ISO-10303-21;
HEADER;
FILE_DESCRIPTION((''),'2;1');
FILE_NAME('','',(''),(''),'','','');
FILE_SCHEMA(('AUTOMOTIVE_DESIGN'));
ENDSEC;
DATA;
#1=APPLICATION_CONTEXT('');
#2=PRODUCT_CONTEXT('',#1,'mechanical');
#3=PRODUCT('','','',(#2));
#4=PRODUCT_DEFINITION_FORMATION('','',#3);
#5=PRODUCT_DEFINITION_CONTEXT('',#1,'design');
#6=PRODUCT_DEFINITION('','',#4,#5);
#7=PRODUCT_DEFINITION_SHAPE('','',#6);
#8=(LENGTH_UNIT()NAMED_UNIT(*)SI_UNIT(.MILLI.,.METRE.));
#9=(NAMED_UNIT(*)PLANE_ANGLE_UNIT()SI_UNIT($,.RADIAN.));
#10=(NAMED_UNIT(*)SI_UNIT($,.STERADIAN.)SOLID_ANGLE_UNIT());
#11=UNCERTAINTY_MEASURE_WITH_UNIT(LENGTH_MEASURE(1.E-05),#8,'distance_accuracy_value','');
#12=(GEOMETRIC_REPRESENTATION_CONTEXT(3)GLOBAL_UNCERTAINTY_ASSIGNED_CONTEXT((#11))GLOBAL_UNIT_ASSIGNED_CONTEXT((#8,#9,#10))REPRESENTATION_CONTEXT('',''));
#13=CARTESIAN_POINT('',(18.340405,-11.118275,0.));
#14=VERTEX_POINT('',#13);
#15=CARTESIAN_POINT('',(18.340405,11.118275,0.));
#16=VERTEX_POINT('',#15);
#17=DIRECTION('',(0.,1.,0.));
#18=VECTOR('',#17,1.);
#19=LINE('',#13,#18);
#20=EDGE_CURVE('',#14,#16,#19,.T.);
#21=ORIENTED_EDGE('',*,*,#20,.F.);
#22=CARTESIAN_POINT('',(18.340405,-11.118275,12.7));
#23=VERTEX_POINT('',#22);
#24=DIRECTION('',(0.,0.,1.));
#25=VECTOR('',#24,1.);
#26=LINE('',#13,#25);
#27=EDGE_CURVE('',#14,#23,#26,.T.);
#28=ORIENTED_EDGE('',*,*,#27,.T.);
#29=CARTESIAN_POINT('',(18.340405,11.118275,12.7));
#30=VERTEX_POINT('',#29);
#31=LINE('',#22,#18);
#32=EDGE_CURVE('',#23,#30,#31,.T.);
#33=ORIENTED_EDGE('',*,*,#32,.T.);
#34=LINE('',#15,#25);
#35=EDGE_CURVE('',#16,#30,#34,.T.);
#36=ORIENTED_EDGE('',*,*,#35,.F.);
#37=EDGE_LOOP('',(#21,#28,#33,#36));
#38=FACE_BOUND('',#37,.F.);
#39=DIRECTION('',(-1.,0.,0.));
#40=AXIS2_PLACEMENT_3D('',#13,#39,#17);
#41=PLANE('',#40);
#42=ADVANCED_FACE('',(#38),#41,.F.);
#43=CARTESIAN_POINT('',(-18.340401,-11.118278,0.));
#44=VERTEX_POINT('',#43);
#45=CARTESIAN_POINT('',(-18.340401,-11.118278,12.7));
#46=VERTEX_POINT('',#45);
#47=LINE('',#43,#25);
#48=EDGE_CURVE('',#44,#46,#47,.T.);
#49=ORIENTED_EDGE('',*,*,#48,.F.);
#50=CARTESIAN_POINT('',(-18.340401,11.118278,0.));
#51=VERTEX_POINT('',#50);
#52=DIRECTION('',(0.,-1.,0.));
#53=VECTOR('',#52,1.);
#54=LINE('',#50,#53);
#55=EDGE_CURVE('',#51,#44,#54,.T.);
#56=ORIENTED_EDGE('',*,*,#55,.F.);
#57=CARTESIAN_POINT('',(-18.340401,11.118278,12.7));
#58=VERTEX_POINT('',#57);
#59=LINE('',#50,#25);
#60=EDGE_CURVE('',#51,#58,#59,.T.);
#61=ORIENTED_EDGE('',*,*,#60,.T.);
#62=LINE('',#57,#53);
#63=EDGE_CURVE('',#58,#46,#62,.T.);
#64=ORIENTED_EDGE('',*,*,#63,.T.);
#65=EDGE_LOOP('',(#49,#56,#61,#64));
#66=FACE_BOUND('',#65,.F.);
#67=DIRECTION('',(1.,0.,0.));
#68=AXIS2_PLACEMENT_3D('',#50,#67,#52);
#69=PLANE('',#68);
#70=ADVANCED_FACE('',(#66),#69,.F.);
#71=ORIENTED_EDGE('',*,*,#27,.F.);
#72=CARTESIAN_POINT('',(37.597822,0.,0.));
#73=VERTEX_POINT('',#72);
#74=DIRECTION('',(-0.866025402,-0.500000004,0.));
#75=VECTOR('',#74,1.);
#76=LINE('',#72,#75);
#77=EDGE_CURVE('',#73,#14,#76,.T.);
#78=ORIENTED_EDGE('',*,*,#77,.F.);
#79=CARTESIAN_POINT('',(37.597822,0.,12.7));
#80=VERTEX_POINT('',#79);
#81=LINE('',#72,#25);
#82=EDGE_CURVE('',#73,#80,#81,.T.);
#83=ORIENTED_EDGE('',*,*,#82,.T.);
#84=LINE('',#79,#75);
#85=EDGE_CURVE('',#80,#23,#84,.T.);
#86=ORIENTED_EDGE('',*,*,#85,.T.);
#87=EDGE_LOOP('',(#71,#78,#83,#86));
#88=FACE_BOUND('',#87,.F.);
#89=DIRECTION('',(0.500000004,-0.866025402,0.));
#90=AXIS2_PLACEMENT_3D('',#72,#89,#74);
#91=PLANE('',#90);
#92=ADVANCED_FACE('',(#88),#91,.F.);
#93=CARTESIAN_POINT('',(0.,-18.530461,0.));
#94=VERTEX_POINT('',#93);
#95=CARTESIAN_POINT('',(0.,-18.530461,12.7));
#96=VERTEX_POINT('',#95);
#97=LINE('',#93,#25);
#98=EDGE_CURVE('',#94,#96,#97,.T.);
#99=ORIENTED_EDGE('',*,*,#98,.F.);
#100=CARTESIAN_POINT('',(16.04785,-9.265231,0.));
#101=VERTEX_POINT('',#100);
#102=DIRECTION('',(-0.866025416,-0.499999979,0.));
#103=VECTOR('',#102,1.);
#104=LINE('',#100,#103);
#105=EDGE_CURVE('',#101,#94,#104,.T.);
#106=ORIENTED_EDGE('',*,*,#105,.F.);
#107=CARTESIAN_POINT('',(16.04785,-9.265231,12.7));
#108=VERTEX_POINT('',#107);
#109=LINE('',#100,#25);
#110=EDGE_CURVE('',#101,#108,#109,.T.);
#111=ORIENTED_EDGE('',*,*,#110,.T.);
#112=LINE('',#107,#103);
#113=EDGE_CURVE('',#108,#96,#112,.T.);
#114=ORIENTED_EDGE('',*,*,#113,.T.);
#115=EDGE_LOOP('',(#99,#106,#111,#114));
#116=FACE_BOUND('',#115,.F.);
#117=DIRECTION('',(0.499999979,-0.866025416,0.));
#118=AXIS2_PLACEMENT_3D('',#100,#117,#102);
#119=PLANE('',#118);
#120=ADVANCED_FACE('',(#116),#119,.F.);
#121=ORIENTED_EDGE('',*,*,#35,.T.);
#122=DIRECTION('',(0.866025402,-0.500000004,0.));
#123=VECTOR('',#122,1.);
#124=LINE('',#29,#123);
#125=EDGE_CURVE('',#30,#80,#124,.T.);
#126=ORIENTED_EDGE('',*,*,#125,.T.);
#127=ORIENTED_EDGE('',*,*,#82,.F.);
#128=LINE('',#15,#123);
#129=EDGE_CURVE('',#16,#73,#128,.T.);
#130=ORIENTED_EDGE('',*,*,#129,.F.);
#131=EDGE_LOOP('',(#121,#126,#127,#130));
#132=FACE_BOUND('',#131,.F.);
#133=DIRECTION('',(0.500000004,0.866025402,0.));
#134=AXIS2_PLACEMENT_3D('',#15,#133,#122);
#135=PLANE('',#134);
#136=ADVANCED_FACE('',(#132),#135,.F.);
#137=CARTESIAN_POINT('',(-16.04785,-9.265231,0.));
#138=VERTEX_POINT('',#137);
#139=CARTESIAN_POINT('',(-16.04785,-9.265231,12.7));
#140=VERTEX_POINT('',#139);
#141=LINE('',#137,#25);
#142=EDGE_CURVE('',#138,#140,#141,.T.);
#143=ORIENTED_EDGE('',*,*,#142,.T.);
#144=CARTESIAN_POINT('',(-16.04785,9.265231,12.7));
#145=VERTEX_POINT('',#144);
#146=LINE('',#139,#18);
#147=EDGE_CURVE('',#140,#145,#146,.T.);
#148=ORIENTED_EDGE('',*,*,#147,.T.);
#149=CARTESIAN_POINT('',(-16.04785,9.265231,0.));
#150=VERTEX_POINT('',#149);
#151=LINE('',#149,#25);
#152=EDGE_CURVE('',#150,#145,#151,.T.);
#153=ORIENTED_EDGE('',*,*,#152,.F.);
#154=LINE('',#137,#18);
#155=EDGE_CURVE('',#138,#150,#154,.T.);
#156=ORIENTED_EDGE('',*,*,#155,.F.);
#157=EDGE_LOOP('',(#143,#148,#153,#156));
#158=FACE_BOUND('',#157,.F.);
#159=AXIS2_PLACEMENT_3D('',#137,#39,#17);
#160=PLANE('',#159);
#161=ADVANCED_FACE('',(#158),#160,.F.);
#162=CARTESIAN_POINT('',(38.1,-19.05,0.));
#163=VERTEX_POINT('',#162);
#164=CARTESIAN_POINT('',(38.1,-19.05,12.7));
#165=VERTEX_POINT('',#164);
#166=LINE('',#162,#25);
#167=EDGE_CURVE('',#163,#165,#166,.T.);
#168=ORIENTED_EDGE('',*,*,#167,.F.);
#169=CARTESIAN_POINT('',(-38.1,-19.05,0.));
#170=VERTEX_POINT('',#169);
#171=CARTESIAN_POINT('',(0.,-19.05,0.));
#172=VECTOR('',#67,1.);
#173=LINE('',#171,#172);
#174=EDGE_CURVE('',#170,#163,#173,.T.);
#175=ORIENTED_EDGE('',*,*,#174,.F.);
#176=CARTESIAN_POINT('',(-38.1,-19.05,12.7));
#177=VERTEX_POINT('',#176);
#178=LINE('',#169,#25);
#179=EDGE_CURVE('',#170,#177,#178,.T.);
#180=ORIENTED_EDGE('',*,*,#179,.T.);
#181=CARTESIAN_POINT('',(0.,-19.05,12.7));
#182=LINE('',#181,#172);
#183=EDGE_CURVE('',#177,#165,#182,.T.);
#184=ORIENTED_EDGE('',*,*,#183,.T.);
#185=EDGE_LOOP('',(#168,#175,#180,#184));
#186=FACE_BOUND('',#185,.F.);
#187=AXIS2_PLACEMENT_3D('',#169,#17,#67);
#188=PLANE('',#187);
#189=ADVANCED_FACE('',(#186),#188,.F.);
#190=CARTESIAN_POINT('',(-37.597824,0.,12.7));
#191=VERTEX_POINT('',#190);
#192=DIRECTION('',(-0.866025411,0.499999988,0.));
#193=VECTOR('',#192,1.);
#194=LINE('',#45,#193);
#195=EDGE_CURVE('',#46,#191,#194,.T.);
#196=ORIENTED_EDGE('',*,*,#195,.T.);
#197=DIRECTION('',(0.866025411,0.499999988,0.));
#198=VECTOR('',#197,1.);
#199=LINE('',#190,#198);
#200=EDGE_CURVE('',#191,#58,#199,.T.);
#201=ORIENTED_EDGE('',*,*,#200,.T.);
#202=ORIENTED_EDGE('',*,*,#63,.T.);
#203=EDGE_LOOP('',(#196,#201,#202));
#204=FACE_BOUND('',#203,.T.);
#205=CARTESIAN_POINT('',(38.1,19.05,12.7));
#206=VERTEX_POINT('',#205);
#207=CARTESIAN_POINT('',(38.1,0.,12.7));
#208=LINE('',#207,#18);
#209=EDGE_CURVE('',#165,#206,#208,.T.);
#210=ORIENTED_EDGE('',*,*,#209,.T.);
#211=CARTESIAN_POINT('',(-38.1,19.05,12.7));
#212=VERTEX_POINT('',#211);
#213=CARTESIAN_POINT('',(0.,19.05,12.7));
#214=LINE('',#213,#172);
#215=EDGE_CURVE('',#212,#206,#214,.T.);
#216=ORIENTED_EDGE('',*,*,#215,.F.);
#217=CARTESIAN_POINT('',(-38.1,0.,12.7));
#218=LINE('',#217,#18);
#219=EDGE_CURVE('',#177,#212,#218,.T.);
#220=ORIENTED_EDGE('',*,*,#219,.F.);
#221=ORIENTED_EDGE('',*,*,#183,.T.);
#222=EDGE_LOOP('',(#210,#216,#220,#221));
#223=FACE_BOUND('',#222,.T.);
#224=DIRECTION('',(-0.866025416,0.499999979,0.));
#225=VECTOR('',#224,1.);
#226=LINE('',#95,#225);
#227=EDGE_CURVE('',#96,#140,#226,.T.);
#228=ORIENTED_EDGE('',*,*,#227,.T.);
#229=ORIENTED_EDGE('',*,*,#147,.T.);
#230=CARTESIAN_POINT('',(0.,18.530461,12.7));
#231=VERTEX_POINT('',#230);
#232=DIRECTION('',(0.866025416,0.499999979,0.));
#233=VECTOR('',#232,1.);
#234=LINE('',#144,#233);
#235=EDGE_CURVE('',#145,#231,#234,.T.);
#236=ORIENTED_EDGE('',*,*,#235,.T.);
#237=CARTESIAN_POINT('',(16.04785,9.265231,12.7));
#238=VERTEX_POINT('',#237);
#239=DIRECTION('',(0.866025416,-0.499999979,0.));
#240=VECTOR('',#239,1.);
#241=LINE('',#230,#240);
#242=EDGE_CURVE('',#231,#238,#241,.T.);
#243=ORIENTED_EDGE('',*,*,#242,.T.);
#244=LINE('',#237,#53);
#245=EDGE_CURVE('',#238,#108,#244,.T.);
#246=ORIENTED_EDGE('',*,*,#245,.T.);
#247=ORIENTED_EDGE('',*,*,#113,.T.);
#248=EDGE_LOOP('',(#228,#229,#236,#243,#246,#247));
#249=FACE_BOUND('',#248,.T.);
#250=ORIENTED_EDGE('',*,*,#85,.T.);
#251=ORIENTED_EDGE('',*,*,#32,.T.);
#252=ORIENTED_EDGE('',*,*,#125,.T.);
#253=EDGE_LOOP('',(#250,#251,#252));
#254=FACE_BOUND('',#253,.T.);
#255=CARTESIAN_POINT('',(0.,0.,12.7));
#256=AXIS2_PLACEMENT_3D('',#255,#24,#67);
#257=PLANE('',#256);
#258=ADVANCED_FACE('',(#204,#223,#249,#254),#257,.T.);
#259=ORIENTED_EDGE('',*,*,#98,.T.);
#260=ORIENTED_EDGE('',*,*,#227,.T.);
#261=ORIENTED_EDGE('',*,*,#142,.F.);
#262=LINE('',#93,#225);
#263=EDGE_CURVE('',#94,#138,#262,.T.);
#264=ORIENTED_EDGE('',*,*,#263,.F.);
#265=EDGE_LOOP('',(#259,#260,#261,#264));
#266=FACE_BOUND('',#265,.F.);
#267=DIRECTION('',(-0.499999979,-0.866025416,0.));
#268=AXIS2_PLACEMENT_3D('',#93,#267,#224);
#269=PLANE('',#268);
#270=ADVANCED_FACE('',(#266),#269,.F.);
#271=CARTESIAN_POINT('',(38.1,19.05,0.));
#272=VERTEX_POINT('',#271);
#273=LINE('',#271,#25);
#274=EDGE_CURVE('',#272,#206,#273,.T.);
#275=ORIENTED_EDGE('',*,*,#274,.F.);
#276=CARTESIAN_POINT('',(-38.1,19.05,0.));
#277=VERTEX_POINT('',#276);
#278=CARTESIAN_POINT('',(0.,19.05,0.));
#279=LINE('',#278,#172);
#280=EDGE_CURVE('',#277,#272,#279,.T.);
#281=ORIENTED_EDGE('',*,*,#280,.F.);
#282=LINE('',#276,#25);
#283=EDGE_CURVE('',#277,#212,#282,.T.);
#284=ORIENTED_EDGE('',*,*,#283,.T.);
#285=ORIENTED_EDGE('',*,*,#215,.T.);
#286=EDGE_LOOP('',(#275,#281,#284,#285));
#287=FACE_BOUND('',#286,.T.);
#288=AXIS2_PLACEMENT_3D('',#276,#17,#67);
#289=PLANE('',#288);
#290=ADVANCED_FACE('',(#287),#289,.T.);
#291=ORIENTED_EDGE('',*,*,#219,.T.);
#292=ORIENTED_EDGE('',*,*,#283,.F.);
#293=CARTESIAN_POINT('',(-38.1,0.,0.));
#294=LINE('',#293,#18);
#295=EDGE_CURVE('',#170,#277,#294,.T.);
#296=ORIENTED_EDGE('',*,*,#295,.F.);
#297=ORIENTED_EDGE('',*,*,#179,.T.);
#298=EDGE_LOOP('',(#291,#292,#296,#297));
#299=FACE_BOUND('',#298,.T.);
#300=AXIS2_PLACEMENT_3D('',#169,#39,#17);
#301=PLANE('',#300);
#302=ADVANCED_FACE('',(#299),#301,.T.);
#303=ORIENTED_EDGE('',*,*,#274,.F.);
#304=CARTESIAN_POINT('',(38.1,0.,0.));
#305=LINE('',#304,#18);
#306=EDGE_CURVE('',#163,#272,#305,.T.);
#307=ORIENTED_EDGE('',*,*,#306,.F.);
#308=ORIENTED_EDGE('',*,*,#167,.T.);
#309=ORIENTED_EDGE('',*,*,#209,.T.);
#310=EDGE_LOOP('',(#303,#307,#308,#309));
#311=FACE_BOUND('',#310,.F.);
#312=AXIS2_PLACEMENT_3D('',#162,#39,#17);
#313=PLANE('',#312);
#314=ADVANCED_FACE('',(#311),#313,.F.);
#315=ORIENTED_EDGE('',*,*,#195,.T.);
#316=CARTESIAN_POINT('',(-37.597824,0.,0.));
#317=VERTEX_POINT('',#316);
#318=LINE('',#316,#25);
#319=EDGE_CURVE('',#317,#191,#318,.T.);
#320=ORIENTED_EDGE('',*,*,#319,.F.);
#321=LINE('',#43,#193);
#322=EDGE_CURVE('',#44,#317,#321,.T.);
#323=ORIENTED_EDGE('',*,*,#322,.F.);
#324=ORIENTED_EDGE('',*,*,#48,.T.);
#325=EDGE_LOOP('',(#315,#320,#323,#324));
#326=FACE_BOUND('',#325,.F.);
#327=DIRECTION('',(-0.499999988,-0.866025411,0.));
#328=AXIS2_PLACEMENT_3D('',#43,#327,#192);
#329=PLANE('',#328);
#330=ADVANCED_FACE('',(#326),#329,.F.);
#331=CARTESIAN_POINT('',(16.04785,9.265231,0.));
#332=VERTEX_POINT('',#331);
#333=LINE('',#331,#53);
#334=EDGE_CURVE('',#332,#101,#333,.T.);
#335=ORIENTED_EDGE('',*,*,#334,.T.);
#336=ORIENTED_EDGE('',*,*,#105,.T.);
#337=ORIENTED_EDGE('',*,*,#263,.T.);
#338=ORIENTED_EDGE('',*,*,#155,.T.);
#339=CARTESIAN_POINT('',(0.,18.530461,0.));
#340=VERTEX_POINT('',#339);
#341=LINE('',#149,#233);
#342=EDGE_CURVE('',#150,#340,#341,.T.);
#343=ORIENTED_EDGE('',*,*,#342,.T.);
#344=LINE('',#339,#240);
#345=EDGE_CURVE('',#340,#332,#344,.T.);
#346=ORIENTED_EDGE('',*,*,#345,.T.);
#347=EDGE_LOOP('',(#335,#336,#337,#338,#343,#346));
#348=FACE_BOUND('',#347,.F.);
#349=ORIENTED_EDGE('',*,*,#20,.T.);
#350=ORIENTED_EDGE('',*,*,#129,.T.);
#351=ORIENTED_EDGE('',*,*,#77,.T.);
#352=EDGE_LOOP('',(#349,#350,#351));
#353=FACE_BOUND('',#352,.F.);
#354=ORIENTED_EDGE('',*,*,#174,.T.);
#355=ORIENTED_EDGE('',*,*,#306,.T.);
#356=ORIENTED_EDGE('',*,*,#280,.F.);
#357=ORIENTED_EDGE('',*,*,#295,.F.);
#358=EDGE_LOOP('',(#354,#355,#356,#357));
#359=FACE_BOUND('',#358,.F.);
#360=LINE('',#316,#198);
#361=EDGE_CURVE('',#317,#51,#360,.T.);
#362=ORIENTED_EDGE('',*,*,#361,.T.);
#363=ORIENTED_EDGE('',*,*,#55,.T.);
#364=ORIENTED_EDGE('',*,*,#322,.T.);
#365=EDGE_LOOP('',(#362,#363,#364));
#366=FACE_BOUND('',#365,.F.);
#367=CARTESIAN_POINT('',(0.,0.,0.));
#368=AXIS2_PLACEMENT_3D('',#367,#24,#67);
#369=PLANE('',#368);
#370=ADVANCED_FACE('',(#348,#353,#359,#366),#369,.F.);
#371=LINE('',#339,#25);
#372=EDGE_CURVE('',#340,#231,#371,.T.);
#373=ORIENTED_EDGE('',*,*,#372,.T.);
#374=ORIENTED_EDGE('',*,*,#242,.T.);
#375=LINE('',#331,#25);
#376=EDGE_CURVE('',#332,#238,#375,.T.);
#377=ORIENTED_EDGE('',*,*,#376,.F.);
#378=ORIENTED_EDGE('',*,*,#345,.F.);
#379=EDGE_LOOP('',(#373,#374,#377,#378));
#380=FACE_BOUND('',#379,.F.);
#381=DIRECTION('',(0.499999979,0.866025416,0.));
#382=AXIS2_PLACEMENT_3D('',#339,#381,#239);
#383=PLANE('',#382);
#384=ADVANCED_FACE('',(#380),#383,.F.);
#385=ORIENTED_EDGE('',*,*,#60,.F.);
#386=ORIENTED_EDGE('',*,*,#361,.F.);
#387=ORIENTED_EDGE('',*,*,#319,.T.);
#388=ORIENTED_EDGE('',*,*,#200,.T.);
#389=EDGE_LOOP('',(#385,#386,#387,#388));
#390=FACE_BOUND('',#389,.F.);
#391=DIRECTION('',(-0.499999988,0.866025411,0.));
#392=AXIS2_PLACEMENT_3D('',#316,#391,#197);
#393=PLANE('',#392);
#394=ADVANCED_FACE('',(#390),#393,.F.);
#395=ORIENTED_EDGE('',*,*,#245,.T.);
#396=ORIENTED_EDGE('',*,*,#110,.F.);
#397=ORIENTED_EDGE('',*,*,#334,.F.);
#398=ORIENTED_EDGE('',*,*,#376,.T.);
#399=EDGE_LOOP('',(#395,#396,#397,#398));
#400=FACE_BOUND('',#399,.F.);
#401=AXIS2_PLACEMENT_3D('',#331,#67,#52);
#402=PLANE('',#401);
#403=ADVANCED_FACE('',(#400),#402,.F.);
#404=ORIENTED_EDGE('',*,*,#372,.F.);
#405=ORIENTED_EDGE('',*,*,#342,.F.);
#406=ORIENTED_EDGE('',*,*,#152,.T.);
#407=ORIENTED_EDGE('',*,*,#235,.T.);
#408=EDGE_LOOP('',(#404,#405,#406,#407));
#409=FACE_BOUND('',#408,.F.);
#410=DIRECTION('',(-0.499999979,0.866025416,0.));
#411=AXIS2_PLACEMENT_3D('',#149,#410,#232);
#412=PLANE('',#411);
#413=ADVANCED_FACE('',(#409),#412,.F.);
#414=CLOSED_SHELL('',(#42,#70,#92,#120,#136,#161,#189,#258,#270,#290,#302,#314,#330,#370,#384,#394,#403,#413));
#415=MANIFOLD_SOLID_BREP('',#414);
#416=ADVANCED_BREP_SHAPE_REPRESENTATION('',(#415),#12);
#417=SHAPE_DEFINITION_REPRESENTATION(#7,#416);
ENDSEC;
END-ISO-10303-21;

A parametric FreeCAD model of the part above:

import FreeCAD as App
import Part
import Sketcher
Q = App.Units.Quantity


def add_polygon(sketch, points):
    """Adds a closed chain of lines whose ends are joined by coincident constraints."""
    first, n = sketch.GeometryCount, len(points)
    for a, b in zip(points, points[1:] + points[:1]):
        sketch.addGeometry(Part.LineSegment(App.Vector(*a, 0), App.Vector(*b, 0)), False)
    for i in range(n):
        sketch.addConstraint(Sketcher.Constraint("Coincident", first + i, 2, first + (i + 1) % n, 1))

doc = App.newDocument("Part")
body = doc.addObject("PartDesign::Body", "Body")

# Sketch on XY plane
sketch1 = doc.addObject("Sketcher::SketchObject", "Sketch")
body.addObject(sketch1)
sketch1.AttachmentSupport = (doc.XY_Plane, [""])
sketch1.MapMode = "FlatFace"
add_polygon(sketch1, [(-38.1, 19.05), (-38.1, -19.05), (38.1, -19.05), (38.1, 19.05)])  # lines 0-3
add_polygon(sketch1, [(-18.340401, -11.118278), (-37.597824, 0), (-18.340401, 11.118278)])  # lines 4-6
add_polygon(sketch1, [(16.04785, -9.265231), (0, -18.530461), (-16.04785, -9.265231), (-16.04785, 9.265231), (0, 18.530461), (16.04785, 9.265231)])  # lines 7-12
add_polygon(sketch1, [(18.340405, 11.118275), (37.597822, 0), (18.340405, -11.118275)])  # lines 13-15
sketch1.addConstraint(Sketcher.Constraint("Vertical", 0))
sketch1.addConstraint(Sketcher.Constraint("Horizontal", 1))
sketch1.addConstraint(Sketcher.Constraint("Vertical", 2))
sketch1.addConstraint(Sketcher.Constraint("Horizontal", 3))
sketch1.addConstraint(Sketcher.Constraint("Vertical", 6))
sketch1.addConstraint(Sketcher.Constraint("Vertical", 9))
sketch1.addConstraint(Sketcher.Constraint("Vertical", 12))
sketch1.addConstraint(Sketcher.Constraint("Vertical", 15))
sketch1.addConstraint(Sketcher.Constraint("Symmetric", 0, 2, 2, 2, -1, 1))
sketch1.addConstraint(Sketcher.Constraint("Symmetric", 7, 2, 10, 2, -1, 1))
sketch1.addConstraint(Sketcher.Constraint("Symmetric", 8, 2, 11, 2, -1, 1))
sketch1.addConstraint(Sketcher.Constraint("Symmetric", 4, 2, 13, 2, -1, 1))
sketch1.addConstraint(Sketcher.Constraint("Symmetric", 5, 2, 14, 2, -1, 1))
sketch1.addConstraint(Sketcher.Constraint("PointOnObject", 4, 2, -1))
sketch1.addConstraint(Sketcher.Constraint("PointOnObject", 7, 2, -2))
sketch1.addConstraint(Sketcher.Constraint("Parallel", 5, 7))
sketch1.addConstraint(Sketcher.Constraint("Parallel", 4, 8))
sketch1.addConstraint(Sketcher.Constraint("Parallel", 7, 10))
sketch1.addConstraint(Sketcher.Constraint("Parallel", 11, 13))
sketch1.addConstraint(Sketcher.Constraint("Horizontal", 9, 2, 11, 2))
sketch1.addConstraint(Sketcher.Constraint("DistanceX", 1, 1, 1, 2, Q("3 in")))
sketch1.addConstraint(Sketcher.Constraint("DistanceY", 0, 2, 0, 1, Q("1.5 in")))
sketch1.addConstraint(Sketcher.Constraint("Angle", 4, Q("150.000001 deg")))
sketch1.addConstraint(Sketcher.Constraint("DistanceY", 9, 1, 9, 2, Q("18.530462 mm")))
sketch1.addConstraint(Sketcher.Constraint("DistanceY", 15, 1, 15, 2, Q("22.23655 mm")))
sketch1.addConstraint(Sketcher.Constraint("DistanceX", 5, 2, -1, 1, Q("18.340401 mm")))
sketch1.addConstraint(Sketcher.Constraint("DistanceX", 9, 2, 11, 2, Q("32.0957 mm")))
pad1 = doc.addObject("PartDesign::Pad", "Pad")
body.addObject(pad1)
pad1.Profile = sketch1
pad1.Length = Q("0.5 in")

doc.recompute()
